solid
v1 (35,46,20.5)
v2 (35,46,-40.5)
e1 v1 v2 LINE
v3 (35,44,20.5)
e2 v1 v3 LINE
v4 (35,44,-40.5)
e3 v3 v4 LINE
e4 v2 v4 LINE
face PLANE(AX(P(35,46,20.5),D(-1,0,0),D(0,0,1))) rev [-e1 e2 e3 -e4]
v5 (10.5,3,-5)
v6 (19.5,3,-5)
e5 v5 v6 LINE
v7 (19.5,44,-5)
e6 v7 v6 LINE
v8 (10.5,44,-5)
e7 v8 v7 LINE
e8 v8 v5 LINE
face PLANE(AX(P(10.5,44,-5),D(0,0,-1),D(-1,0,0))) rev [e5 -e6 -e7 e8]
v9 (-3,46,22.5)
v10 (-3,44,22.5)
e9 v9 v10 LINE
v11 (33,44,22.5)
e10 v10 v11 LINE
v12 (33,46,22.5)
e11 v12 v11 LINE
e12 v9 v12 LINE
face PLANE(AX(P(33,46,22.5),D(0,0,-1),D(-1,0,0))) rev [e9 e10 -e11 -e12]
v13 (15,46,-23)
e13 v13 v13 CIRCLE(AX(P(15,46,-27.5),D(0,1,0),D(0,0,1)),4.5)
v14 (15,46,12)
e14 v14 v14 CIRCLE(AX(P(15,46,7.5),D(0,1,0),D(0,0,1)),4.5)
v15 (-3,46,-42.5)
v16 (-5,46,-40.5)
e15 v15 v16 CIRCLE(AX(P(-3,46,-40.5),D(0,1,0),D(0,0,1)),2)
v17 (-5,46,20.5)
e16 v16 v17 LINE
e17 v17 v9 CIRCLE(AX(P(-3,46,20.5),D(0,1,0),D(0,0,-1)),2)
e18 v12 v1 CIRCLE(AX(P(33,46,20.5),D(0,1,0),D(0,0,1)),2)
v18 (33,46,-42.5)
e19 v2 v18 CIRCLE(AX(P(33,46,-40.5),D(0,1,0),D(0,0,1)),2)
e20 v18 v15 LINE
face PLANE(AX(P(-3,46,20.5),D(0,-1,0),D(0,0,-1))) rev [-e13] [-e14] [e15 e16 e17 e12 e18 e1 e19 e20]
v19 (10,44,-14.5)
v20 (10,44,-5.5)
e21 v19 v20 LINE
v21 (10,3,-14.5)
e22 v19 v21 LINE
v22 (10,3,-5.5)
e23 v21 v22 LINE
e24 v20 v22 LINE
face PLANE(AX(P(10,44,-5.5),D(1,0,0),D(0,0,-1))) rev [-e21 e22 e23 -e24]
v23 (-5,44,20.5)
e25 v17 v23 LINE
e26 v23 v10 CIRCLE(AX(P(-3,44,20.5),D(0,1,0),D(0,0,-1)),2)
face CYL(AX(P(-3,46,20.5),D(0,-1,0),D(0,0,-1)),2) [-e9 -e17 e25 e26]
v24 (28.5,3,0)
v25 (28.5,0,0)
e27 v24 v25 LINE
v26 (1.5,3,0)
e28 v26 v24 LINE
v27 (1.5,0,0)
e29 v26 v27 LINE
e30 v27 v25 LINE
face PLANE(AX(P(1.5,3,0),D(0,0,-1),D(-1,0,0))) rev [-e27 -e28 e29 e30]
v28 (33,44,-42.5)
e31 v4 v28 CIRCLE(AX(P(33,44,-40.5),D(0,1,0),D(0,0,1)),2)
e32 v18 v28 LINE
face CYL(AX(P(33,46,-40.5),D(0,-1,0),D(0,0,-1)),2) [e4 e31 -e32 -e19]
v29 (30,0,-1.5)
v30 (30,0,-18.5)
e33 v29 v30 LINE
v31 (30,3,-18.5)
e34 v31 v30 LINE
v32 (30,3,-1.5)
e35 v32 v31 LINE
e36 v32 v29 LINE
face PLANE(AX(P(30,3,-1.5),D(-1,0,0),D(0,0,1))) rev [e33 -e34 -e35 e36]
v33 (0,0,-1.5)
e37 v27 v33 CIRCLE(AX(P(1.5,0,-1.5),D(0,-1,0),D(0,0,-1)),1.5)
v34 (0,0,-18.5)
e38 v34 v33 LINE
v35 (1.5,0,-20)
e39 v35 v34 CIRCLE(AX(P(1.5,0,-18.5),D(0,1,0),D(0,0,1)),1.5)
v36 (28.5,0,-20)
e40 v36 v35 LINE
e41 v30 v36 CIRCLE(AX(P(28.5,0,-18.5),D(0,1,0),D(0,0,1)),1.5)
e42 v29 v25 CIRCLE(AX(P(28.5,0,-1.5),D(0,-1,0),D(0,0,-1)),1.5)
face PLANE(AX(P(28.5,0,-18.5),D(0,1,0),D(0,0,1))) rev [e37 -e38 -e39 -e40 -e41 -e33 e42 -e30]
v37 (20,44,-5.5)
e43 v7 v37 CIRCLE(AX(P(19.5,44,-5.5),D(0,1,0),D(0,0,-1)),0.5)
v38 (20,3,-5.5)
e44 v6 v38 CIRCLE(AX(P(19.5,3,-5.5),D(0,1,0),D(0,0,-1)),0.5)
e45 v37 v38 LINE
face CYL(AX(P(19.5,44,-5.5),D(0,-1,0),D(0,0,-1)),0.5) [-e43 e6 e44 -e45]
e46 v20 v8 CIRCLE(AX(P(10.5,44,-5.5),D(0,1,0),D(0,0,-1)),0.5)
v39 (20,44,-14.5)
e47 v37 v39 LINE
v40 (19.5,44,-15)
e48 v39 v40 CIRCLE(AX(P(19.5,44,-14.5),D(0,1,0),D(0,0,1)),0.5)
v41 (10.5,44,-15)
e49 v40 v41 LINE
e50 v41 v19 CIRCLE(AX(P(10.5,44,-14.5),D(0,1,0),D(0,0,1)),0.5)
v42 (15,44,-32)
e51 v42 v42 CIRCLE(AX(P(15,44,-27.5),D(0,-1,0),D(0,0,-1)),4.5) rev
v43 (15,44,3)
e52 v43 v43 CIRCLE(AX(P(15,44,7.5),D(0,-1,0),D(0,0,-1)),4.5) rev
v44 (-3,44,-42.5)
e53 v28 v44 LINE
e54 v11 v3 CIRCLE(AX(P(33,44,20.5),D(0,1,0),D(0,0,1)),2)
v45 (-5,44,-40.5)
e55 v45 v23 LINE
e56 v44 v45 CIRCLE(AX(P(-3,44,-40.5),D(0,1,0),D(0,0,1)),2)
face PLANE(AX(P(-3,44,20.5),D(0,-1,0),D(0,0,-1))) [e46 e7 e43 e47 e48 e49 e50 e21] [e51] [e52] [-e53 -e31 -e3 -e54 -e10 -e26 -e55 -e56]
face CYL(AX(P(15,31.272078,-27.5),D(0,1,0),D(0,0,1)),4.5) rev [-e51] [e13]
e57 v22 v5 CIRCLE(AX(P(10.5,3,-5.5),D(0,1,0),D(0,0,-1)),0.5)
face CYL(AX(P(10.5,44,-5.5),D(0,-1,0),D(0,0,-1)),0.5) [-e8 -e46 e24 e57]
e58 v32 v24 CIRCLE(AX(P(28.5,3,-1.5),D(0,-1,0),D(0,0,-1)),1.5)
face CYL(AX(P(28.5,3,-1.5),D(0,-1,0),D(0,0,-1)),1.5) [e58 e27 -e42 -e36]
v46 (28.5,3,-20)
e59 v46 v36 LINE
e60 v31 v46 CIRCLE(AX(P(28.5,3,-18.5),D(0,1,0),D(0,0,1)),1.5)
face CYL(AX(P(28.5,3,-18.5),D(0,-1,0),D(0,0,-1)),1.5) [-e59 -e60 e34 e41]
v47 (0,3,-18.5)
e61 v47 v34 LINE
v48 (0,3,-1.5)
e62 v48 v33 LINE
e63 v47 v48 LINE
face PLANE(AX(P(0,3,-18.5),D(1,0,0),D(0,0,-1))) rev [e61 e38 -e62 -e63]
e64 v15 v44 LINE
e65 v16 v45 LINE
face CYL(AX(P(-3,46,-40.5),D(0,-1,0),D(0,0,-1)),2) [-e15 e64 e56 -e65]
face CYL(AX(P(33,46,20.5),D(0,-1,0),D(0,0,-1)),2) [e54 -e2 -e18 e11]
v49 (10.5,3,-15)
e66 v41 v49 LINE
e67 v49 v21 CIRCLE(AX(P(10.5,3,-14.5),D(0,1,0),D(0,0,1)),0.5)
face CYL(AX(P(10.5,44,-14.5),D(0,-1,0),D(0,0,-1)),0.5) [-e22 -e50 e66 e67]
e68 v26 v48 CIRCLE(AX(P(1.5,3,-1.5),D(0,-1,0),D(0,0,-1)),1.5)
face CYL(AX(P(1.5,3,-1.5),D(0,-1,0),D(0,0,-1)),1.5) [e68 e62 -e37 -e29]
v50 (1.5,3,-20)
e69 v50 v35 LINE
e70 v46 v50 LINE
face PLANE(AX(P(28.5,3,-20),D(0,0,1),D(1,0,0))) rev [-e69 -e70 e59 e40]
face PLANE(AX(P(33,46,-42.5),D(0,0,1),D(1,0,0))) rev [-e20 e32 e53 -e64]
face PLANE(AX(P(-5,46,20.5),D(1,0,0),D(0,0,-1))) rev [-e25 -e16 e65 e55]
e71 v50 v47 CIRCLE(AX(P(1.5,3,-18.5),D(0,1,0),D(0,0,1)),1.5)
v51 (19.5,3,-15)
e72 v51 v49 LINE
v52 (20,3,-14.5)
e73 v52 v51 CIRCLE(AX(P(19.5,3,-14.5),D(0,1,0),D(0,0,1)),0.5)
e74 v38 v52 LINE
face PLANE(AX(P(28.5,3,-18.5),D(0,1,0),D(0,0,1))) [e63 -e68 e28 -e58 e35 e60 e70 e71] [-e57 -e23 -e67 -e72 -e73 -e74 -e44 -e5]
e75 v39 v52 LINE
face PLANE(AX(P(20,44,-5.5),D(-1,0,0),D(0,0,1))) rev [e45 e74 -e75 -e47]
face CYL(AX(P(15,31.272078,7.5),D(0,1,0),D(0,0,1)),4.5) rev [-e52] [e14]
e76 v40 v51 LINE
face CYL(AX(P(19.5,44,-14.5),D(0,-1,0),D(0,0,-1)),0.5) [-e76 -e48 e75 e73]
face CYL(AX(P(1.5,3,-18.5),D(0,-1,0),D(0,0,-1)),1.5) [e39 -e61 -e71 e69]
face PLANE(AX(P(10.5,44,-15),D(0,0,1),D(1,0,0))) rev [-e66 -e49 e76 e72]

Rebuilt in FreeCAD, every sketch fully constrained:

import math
import FreeCAD as App
import Part
import Sketcher

V = App.Vector
Q = App.Units.Quantity

doc = App.newDocument("Part")
body = doc.addObject("PartDesign::Body", "Body")

sketch1 = body.newObject("Sketcher::SketchObject", "Sketch")
sketch1.AttachmentSupport = (doc.getObject("XZ_Plane"), [""])
sketch1.MapMode = "FlatFace"
sketch1.addGeometry(Part.LineSegment(V(1.5, 0, 0), V(28.5, 0, 0)), False)
sketch1.addGeometry(Part.ArcOfCircle(Part.Circle(V(28.5, -1.5, 0), V(0, 0, 1), 1.5), math.radians(0), math.radians(90)), False)
sketch1.addGeometry(Part.LineSegment(V(30, -1.5, 0), V(30, -18.5, 0)), False)
sketch1.addGeometry(Part.ArcOfCircle(Part.Circle(V(28.5, -18.5, 0), V(0, 0, 1), 1.5), math.radians(-90), math.radians(0)), False)
sketch1.addGeometry(Part.LineSegment(V(28.5, -20, 0), V(1.5, -20, 0)), False)
sketch1.addGeometry(Part.ArcOfCircle(Part.Circle(V(1.5, -18.5, 0), V(0, 0, 1), 1.5), math.radians(180), math.radians(270)), False)
sketch1.addGeometry(Part.LineSegment(V(0, -18.5, 0), V(0, -1.5, 0)), False)
sketch1.addGeometry(Part.ArcOfCircle(Part.Circle(V(1.5, -1.5, 0), V(0, 0, 1), 1.5), math.radians(90), math.radians(180)), False)
sketch1.addConstraint(Sketcher.Constraint("Tangent", 0, 2, 1, 2))
sketch1.addConstraint(Sketcher.Constraint("Tangent", 1, 1, 2, 1))
sketch1.addConstraint(Sketcher.Constraint("Tangent", 2, 2, 3, 2))
sketch1.addConstraint(Sketcher.Constraint("Tangent", 3, 1, 4, 1))
sketch1.addConstraint(Sketcher.Constraint("Tangent", 4, 2, 5, 2))
sketch1.addConstraint(Sketcher.Constraint("Tangent", 5, 1, 6, 1))
sketch1.addConstraint(Sketcher.Constraint("Tangent", 6, 2, 7, 2))
sketch1.addConstraint(Sketcher.Constraint("Tangent", 7, 1, 0, 1))
sketch1.addConstraint(Sketcher.Constraint("Horizontal", 0))
sketch1.addConstraint(Sketcher.Constraint("Vertical", 2))
sketch1.addConstraint(Sketcher.Constraint("Horizontal", 4))
sketch1.addConstraint(Sketcher.Constraint("Vertical", 6))
sketch1.addConstraint(Sketcher.Constraint("Equal", 1, 3))
sketch1.addConstraint(Sketcher.Constraint("Equal", 3, 5))
sketch1.addConstraint(Sketcher.Constraint("Equal", 5, 7))
sketch1.addConstraint(Sketcher.Constraint("PointOnObject", 0, 2, -1))
sketch1.addConstraint(Sketcher.Constraint("PointOnObject", 5, 1, -2))
sketch1.addConstraint(Sketcher.Constraint("Radius", 1, Q("1.5 mm")))
sketch1.addConstraint(Sketcher.Constraint("DistanceX", 0, 1, 0, 2, Q("27 mm")))
sketch1.addConstraint(Sketcher.Constraint("DistanceY", 2, 2, 2, 1, Q("17 mm")))
pad1 = body.newObject("PartDesign::Pad", "Pad")
pad1.Profile = sketch1
pad1.Length = 3
pad1.Reversed = True

sketch2 = body.newObject("Sketcher::SketchObject", "Sketch001")
sketch2.AttachmentSupport = (doc.getObject("XZ_Plane"), [""])
sketch2.MapMode = "FlatFace"
sketch2.AttachmentOffset = App.Placement(V(0, 0, -3), App.Rotation())
sketch2.addGeometry(Part.LineSegment(V(10.5, -5, 0), V(19.5, -5, 0)), False)
sketch2.addGeometry(Part.ArcOfCircle(Part.Circle(V(19.5, -5.5, 0), V(0, 0, 1), 0.5), math.radians(0), math.radians(90)), False)
sketch2.addGeometry(Part.LineSegment(V(20, -5.5, 0), V(20, -14.5, 0)), False)
sketch2.addGeometry(Part.ArcOfCircle(Part.Circle(V(19.5, -14.5, 0), V(0, 0, 1), 0.5), math.radians(-90), math.radians(0)), False)
sketch2.addGeometry(Part.LineSegment(V(19.5, -15, 0), V(10.5, -15, 0)), False)
sketch2.addGeometry(Part.ArcOfCircle(Part.Circle(V(10.5, -14.5, 0), V(0, 0, 1), 0.5), math.radians(180), math.radians(270)), False)
sketch2.addGeometry(Part.LineSegment(V(10, -14.5, 0), V(10, -5.5, 0)), False)
sketch2.addGeometry(Part.ArcOfCircle(Part.Circle(V(10.5, -5.5, 0), V(0, 0, 1), 0.5), math.radians(90), math.radians(180)), False)
sketch2.addConstraint(Sketcher.Constraint("Tangent", 0, 2, 1, 2))
sketch2.addConstraint(Sketcher.Constraint("Tangent", 1, 1, 2, 1))
sketch2.addConstraint(Sketcher.Constraint("Tangent", 2, 2, 3, 2))
sketch2.addConstraint(Sketcher.Constraint("Tangent", 3, 1, 4, 1))
sketch2.addConstraint(Sketcher.Constraint("Tangent", 4, 2, 5, 2))
sketch2.addConstraint(Sketcher.Constraint("Tangent", 5, 1, 6, 1))
sketch2.addConstraint(Sketcher.Constraint("Tangent", 6, 2, 7, 2))
sketch2.addConstraint(Sketcher.Constraint("Tangent", 7, 1, 0, 1))
sketch2.addConstraint(Sketcher.Constraint("Horizontal", 0))
sketch2.addConstraint(Sketcher.Constraint("Vertical", 2))
sketch2.addConstraint(Sketcher.Constraint("Horizontal", 4))
sketch2.addConstraint(Sketcher.Constraint("Vertical", 6))
sketch2.addConstraint(Sketcher.Constraint("Equal", 1, 3))
sketch2.addConstraint(Sketcher.Constraint("Equal", 3, 5))
sketch2.addConstraint(Sketcher.Constraint("Equal", 5, 7))
sketch2.addConstraint(Sketcher.Constraint("Equal", 4, 2))
sketch2.addConstraint(Sketcher.Constraint("Radius", 1, Q("0.5 mm")))
sketch2.addConstraint(Sketcher.Constraint("DistanceX", 0, 1, 0, 2, Q("9 mm")))
sketch2.addConstraint(Sketcher.Constraint("DistanceY", 0, 2, -1, 1, Q("5 mm")))
sketch2.addConstraint(Sketcher.Constraint("DistanceX", -1, 1, 1, 1, Q("20 mm")))
pad2 = body.newObject("PartDesign::Pad", "Pad001")
pad2.Profile = sketch2
pad2.Length = 41
pad2.Reversed = True

sketch3 = body.newObject("Sketcher::SketchObject", "Sketch002")
sketch3.AttachmentSupport = (doc.getObject("XZ_Plane"), [""])
sketch3.MapMode = "FlatFace"
sketch3.AttachmentOffset = App.Placement(V(0, 0, -44), App.Rotation())
sketch3.addGeometry(Part.LineSegment(V(-3, 22.5, 0), V(33, 22.5, 0)), False)
sketch3.addGeometry(Part.ArcOfCircle(Part.Circle(V(33, 20.5, 0), V(0, 0, 1), 2), math.radians(0), math.radians(90)), False)
sketch3.addGeometry(Part.LineSegment(V(35, 20.5, 0), V(35, -40.5, 0)), False)
sketch3.addGeometry(Part.ArcOfCircle(Part.Circle(V(33, -40.5, 0), V(0, 0, 1), 2), math.radians(-90), math.radians(0)), False)
sketch3.addGeometry(Part.LineSegment(V(33, -42.5, 0), V(-3, -42.5, 0)), False)
sketch3.addGeometry(Part.ArcOfCircle(Part.Circle(V(-3, -40.5, 0), V(0, 0, 1), 2), math.radians(-180), math.radians(-90)), False)
sketch3.addGeometry(Part.LineSegment(V(-5, -40.5, 0), V(-5, 20.5, 0)), False)
sketch3.addGeometry(Part.ArcOfCircle(Part.Circle(V(-3, 20.5, 0), V(0, 0, 1), 2), math.radians(90), math.radians(180)), False)
sketch3.addConstraint(Sketcher.Constraint("Tangent", 0, 2, 1, 2))
sketch3.addConstraint(Sketcher.Constraint("Tangent", 1, 1, 2, 1))
sketch3.addConstraint(Sketcher.Constraint("Tangent", 2, 2, 3, 2))
sketch3.addConstraint(Sketcher.Constraint("Tangent", 3, 1, 4, 1))
sketch3.addConstraint(Sketcher.Constraint("Tangent", 4, 2, 5, 2))
sketch3.addConstraint(Sketcher.Constraint("Tangent", 5, 1, 6, 1))
sketch3.addConstraint(Sketcher.Constraint("Tangent", 6, 2, 7, 2))
sketch3.addConstraint(Sketcher.Constraint("Tangent", 7, 1, 0, 1))
sketch3.addConstraint(Sketcher.Constraint("Horizontal", 0))
sketch3.addConstraint(Sketcher.Constraint("Vertical", 2))
sketch3.addConstraint(Sketcher.Constraint("Horizontal", 4))
sketch3.addConstraint(Sketcher.Constraint("Vertical", 6))
sketch3.addConstraint(Sketcher.Constraint("Equal", 1, 3))
sketch3.addConstraint(Sketcher.Constraint("Equal", 3, 5))
sketch3.addConstraint(Sketcher.Constraint("Equal", 5, 7))
sketch3.addConstraint(Sketcher.Constraint("Radius", 1, Q("2 mm")))
sketch3.addConstraint(Sketcher.Constraint("DistanceX", 0, 1, 0, 2, Q("36 mm")))
sketch3.addConstraint(Sketcher.Constraint("DistanceY", 2, 2, 2, 1, Q("61 mm")))
sketch3.addConstraint(Sketcher.Constraint("DistanceX", -1, 1, 1, 3, Q("33 mm")))
sketch3.addConstraint(Sketcher.Constraint("DistanceY", -1, 1, 1, 3, Q("20.5 mm")))
pad3 = body.newObject("PartDesign::Pad", "Pad002")
pad3.Profile = sketch3
pad3.Length = 2
pad3.Reversed = True

sketch4 = body.newObject("Sketcher::SketchObject", "Sketch003")
sketch4.AttachmentSupport = (doc.getObject("XZ_Plane"), [""])
sketch4.MapMode = "FlatFace"
sketch4.AttachmentOffset = App.Placement(V(0, 0, -46), App.Rotation())
sketch4.addGeometry(Part.Circle(V(15, -27.5, 0), V(0, 0, 1), 4.5), False)
sketch4.addGeometry(Part.Circle(V(15, 7.5, 0), V(0, 0, 1), 4.5), False)
sketch4.addConstraint(Sketcher.Constraint("Equal", 0, 1))
sketch4.addConstraint(Sketcher.Constraint("Vertical", 0, 3, 1, 3))
sketch4.addConstraint(Sketcher.Constraint("Diameter", 0, Q("9 mm")))
sketch4.addConstraint(Sketcher.Constraint("DistanceX", -1, 1, 0, 3, Q("15 mm")))
sketch4.addConstraint(Sketcher.Constraint("DistanceY", 0, 3, 1, 3, Q("35 mm")))
sketch4.addConstraint(Sketcher.Constraint("DistanceY", 0, 3, -1, 1, Q("27.5 mm")))
pocket1 = body.newObject("PartDesign::Pocket", "Pocket")
pocket1.Profile = sketch4
pocket1.Length = 2
pocket1.Reversed = True

doc.recompute()
